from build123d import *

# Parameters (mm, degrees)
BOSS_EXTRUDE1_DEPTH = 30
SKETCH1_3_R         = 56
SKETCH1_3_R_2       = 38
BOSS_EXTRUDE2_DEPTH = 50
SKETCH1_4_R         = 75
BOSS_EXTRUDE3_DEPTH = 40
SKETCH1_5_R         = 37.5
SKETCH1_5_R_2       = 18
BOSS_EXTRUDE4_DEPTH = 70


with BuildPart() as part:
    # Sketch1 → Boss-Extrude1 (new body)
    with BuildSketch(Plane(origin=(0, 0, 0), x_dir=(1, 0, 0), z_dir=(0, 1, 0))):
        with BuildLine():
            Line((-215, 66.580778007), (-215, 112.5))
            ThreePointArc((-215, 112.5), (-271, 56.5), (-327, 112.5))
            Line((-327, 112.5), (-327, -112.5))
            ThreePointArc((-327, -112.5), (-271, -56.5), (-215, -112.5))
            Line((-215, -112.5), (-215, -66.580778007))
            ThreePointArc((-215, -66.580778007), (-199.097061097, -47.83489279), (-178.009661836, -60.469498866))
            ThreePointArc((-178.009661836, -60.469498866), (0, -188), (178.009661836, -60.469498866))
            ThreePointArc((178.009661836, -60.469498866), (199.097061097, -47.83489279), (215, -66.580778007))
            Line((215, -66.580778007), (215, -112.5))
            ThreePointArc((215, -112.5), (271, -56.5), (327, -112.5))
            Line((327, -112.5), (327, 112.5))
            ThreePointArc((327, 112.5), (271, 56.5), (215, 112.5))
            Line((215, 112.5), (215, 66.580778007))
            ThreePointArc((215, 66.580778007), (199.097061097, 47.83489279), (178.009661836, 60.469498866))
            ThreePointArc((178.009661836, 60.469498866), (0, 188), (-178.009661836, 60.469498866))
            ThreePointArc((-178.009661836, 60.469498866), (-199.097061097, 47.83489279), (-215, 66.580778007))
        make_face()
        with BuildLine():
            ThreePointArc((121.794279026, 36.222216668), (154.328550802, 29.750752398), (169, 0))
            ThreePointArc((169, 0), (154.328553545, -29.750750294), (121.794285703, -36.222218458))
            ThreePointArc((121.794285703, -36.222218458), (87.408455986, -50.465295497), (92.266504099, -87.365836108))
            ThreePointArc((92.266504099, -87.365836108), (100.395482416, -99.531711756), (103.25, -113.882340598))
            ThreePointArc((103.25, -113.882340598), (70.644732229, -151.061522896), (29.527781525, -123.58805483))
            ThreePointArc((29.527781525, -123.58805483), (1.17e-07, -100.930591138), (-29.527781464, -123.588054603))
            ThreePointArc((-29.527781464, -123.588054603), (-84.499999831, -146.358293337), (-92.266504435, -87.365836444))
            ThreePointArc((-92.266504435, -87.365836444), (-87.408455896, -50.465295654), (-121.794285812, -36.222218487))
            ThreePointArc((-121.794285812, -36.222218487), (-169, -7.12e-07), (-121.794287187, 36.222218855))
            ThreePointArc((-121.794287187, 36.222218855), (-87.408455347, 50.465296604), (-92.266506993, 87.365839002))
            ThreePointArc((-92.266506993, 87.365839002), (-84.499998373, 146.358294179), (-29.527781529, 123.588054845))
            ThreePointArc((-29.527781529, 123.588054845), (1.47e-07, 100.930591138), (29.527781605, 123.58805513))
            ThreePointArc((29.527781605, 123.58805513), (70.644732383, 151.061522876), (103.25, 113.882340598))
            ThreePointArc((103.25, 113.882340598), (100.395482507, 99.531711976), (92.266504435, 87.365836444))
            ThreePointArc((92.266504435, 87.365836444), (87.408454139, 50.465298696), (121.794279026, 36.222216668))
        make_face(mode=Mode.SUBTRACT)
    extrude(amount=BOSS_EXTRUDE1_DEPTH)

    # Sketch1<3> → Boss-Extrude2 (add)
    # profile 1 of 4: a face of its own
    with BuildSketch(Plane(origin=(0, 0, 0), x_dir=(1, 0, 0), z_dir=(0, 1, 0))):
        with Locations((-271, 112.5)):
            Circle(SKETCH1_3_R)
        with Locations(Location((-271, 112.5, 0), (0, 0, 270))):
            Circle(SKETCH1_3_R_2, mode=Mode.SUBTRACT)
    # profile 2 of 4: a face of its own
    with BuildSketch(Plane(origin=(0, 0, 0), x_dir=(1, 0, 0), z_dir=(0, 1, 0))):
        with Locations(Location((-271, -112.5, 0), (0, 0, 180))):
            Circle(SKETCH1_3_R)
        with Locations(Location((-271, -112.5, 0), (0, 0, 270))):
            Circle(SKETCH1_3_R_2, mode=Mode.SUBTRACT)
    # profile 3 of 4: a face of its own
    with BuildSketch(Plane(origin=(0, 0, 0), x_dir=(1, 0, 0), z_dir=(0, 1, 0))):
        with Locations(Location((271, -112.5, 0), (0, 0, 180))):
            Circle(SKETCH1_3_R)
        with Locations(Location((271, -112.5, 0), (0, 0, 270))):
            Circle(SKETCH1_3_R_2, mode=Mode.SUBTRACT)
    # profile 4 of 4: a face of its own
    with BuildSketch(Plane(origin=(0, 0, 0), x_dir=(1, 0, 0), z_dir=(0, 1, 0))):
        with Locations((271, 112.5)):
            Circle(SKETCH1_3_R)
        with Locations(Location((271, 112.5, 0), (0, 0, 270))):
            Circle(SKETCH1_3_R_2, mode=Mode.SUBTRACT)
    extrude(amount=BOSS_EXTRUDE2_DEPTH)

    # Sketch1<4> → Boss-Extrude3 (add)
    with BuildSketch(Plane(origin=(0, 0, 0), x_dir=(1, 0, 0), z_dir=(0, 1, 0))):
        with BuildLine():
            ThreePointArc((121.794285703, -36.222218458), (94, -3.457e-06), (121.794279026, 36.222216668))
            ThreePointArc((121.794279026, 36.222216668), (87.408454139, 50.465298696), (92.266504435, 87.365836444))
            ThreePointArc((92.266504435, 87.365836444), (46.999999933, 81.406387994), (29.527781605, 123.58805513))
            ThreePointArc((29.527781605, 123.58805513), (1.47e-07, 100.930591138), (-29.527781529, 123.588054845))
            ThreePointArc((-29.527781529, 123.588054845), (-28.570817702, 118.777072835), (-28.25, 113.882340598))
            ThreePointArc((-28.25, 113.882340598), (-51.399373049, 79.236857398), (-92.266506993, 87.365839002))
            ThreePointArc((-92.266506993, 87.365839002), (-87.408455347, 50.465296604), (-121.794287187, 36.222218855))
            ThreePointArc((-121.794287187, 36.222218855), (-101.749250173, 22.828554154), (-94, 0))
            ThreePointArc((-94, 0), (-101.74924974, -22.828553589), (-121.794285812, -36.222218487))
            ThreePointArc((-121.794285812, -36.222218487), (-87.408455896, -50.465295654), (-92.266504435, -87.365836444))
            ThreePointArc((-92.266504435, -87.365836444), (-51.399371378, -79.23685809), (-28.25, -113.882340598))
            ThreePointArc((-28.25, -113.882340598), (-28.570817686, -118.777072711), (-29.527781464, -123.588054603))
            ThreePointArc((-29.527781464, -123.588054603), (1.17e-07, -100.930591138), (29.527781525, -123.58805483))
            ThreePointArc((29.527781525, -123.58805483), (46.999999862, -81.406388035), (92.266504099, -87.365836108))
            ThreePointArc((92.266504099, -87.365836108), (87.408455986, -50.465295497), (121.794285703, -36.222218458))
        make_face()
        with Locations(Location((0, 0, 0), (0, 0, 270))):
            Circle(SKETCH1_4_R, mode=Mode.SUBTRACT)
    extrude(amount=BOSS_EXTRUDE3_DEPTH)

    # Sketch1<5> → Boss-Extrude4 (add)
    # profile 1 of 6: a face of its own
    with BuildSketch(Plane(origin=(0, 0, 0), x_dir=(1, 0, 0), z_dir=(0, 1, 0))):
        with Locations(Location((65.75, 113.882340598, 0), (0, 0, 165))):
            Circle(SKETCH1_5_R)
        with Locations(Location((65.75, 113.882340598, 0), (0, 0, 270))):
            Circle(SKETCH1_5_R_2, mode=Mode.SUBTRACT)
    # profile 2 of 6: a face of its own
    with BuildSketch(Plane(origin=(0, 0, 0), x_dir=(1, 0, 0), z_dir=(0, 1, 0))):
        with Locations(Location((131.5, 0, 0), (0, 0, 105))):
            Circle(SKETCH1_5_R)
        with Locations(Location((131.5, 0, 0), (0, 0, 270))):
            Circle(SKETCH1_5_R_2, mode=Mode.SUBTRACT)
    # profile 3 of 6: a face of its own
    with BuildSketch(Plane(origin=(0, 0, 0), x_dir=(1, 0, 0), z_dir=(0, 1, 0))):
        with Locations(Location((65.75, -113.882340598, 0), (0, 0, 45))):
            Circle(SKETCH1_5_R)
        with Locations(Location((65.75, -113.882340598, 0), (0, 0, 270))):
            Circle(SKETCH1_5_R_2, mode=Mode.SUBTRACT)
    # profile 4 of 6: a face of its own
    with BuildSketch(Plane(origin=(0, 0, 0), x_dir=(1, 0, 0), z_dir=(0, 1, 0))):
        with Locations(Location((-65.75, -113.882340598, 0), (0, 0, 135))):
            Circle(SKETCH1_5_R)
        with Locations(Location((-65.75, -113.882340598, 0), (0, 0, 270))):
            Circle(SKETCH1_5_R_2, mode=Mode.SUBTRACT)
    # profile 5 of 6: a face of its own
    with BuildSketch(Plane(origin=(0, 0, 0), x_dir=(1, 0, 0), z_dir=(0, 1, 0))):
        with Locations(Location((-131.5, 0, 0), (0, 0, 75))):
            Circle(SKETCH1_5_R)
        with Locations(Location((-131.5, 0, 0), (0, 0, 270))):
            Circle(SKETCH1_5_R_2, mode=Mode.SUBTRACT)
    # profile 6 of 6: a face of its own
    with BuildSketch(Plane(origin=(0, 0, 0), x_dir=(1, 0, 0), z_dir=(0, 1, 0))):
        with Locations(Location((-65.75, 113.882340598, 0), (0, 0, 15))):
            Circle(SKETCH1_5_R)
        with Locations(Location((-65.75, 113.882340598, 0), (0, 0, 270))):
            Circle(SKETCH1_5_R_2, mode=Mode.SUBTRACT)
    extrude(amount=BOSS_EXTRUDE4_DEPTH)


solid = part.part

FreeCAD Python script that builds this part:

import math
import FreeCAD as App
import Part
import Sketcher
from FreeCAD import Vector
Q = App.Units.Quantity

doc = App.newDocument("Part")
body = doc.addObject("PartDesign::Body", "Body")

# Sketch on XZ plane
sketch1 = body.newObject("Sketcher::SketchObject", "Sketch")
sketch1.AttachmentSupport = (doc.getObject("XZ_Plane"), [""])
sketch1.MapMode = "FlatFace"
sketch1.addGeometry([
    Part.LineSegment(Vector(-215, -67, 0), Vector(-215, -112, 0)),  # 0
    Part.ArcOfCircle(Part.Circle(Vector(-271, -112, 0), Vector(0, 0, 1), 56), math.radians(0), math.radians(180)),  # 1
    Part.LineSegment(Vector(-327, -112, 0), Vector(-327, 112, 0)),  # 2
    Part.ArcOfCircle(Part.Circle(Vector(-271, 112, 0), Vector(0, 0, 1), 56), math.radians(180), math.radians(360)),  # 3
    Part.LineSegment(Vector(-215, 112, 0), Vector(-215, 67, 0)),  # 4
    Part.ArcOfCircle(Part.Circle(Vector(-196, 67, 0), Vector(0, 0, 1), 19), math.radians(180), math.radians(341)),  # 5
    Part.ArcOfCircle(Part.Circle(Vector(0, 0, 0), Vector(0, 0, 1), 188), math.radians(19), math.radians(161)),  # 6
    Part.ArcOfCircle(Part.Circle(Vector(196, 67, 0), Vector(0, 0, 1), 19), math.radians(-161), math.radians(0)),  # 7
    Part.LineSegment(Vector(215, 67, 0), Vector(215, 112, 0)),  # 8
    Part.ArcOfCircle(Part.Circle(Vector(271, 112, 0), Vector(0, 0, 1), 56), math.radians(180), math.radians(360)),  # 9
    Part.LineSegment(Vector(327, 112, 0), Vector(327, -112, 0)),  # 10
    Part.ArcOfCircle(Part.Circle(Vector(271, -112, 0), Vector(0, 0, 1), 56), math.radians(0), math.radians(180)),  # 11
    Part.LineSegment(Vector(215, -112, 0), Vector(215, -67, 0)),  # 12
    Part.ArcOfCircle(Part.Circle(Vector(196, -67, 0), Vector(0, 0, 1), 19), math.radians(0), math.radians(161)),  # 13
    Part.ArcOfCircle(Part.Circle(Vector(0, 0, 0), Vector(0, 0, 1), 188), math.radians(-161), math.radians(-19)),  # 14
    Part.ArcOfCircle(Part.Circle(Vector(-196, -67, 0), Vector(0, 0, 1), 19), math.radians(19), math.radians(180)),  # 15
    Part.ArcOfCircle(Part.Circle(Vector(114, -66, 0), Vector(0, 0, 1), 31), math.radians(75), math.radians(225)),  # 16
    Part.ArcOfCircle(Part.Circle(Vector(132, 0, 0), Vector(0, 0, 1), 38), math.radians(-105), math.radians(0)),  # 17
    Part.ArcOfCircle(Part.Circle(Vector(132, 0, 0), Vector(0, 0, 1), 38), math.radians(0), math.radians(105)),  # 18
    Part.ArcOfCircle(Part.Circle(Vector(114, 66, 0), Vector(0, 0, 1), 31), math.radians(135), math.radians(285)),  # 19
    Part.ArcOfCircle(Part.Circle(Vector(66, 114, 0), Vector(0, 0, 1), 38), math.radians(-45), math.radians(0)),  # 20
    Part.ArcOfCircle(Part.Circle(Vector(66, 114, 0), Vector(0, 0, 1), 38), math.radians(0), math.radians(165)),  # 21
    Part.ArcOfCircle(Part.Circle(Vector(0, 132, 0), Vector(0, 0, 1), 31), math.radians(-165), math.radians(-15)),  # 22
    Part.ArcOfCircle(Part.Circle(Vector(-66, 114, 0), Vector(0, 0, 1), 38), math.radians(15), math.radians(225)),  # 23
    Part.ArcOfCircle(Part.Circle(Vector(-114, 66, 0), Vector(0, 0, 1), 31), math.radians(-105), math.radians(45)),  # 24
    Part.ArcOfCircle(Part.Circle(Vector(-132, 0, 0), Vector(0, 0, 1), 38), math.radians(75), math.radians(285)),  # 25
    Part.ArcOfCircle(Part.Circle(Vector(-114, -66, 0), Vector(0, 0, 1), 31), math.radians(-45), math.radians(105)),  # 26
    Part.ArcOfCircle(Part.Circle(Vector(-66, -114, 0), Vector(0, 0, 1), 38), math.radians(135), math.radians(345)),  # 27
    Part.ArcOfCircle(Part.Circle(Vector(0, -131, 0), Vector(0, 0, 1), 31), math.radians(15), math.radians(165)),  # 28
    Part.ArcOfCircle(Part.Circle(Vector(66, -114, 0), Vector(0, 0, 1), 38), math.radians(-165), math.radians(0)),  # 29
    Part.ArcOfCircle(Part.Circle(Vector(66, -114, 0), Vector(0, 0, 1), 38), math.radians(0), math.radians(45)),  # 30
], False)
sketch1.addConstraint([
    Sketcher.Constraint("Tangent", 0, 2, 1, 1),
    Sketcher.Constraint("Tangent", 1, 2, 2, 1),
    Sketcher.Constraint("Tangent", 2, 2, 3, 1),
    Sketcher.Constraint("Tangent", 3, 2, 4, 1),
    Sketcher.Constraint("Tangent", 4, 2, 5, 1),
    Sketcher.Constraint("Tangent", 5, 2, 6, 2),
    Sketcher.Constraint("Tangent", 6, 1, 7, 1),
    Sketcher.Constraint("Tangent", 7, 2, 8, 1),
    Sketcher.Constraint("Tangent", 8, 2, 9, 1),
    Sketcher.Constraint("Tangent", 9, 2, 10, 1),
    Sketcher.Constraint("Tangent", 10, 2, 11, 1),
    Sketcher.Constraint("Tangent", 11, 2, 12, 1),
    Sketcher.Constraint("Tangent", 12, 2, 13, 1),
    Sketcher.Constraint("Tangent", 13, 2, 14, 2),
    Sketcher.Constraint("Tangent", 14, 1, 15, 1),
    Sketcher.Constraint("Tangent", 15, 2, 0, 1),
    Sketcher.Constraint("Tangent", 16, 1, 17, 1),
    Sketcher.Constraint("Tangent", 17, 2, 18, 1),
    Sketcher.Constraint("Tangent", 18, 2, 19, 2),
    Sketcher.Constraint("Tangent", 19, 1, 20, 1),
    Sketcher.Constraint("Tangent", 20, 2, 21, 1),
    Sketcher.Constraint("Tangent", 21, 2, 22, 2),
    Sketcher.Constraint("Tangent", 22, 1, 23, 1),
    Sketcher.Constraint("Tangent", 23, 2, 24, 2),
    Sketcher.Constraint("Tangent", 24, 1, 25, 1),
    Sketcher.Constraint("Tangent", 25, 2, 26, 2),
    Sketcher.Constraint("Tangent", 26, 1, 27, 1),
    Sketcher.Constraint("Tangent", 27, 2, 28, 2),
    Sketcher.Constraint("Tangent", 28, 1, 29, 1),
    Sketcher.Constraint("Tangent", 29, 2, 30, 1),
    Sketcher.Constraint("Tangent", 30, 2, 16, 2),
    Sketcher.Constraint("Vertical", 0),
    Sketcher.Constraint("Vertical", 2),
    Sketcher.Constraint("Vertical", 4),
    Sketcher.Constraint("Vertical", 8),
    Sketcher.Constraint("Vertical", 10),
    Sketcher.Constraint("Vertical", 12),
    Sketcher.Constraint("Coincident", 6, 3, -1, 1),
    Sketcher.Constraint("Coincident", 14, 3, -1, 1),
    Sketcher.Constraint("Equal", 1, 3),
    Sketcher.Constraint("Equal", 5, 7),
    Sketcher.Constraint("Equal", 3, 9),
    Sketcher.Constraint("Equal", 9, 11),
    Sketcher.Constraint("Equal", 7, 13),
    Sketcher.Constraint("Equal", 6, 14),
    Sketcher.Constraint("Equal", 13, 15),
    Sketcher.Constraint("Equal", 17, 18),
    Sketcher.Constraint("Equal", 16, 19),
    Sketcher.Constraint("Equal", 18, 20),
    Sketcher.Constraint("Equal", 20, 21),
    Sketcher.Constraint("Equal", 19, 22),
    Sketcher.Constraint("Equal", 21, 23),
    Sketcher.Constraint("Equal", 22, 24),
    Sketcher.Constraint("Equal", 23, 25),
    Sketcher.Constraint("Equal", 24, 26),
    Sketcher.Constraint("Equal", 25, 27),
    Sketcher.Constraint("Equal", 26, 28),
    Sketcher.Constraint("Equal", 27, 29),
    Sketcher.Constraint("Equal", 29, 30),
    Sketcher.Constraint("Symmetric", 1, 3, 9, 3, -1, 1),
    Sketcher.Constraint("Symmetric", 16, 3, 24, 3, -1, 1),
    Sketcher.Constraint("Symmetric", 19, 3, 26, 3, -1, 1),
    Sketcher.Constraint("Symmetric", 22, 3, 28, 3, -1, 1),
    Sketcher.Constraint("Symmetric", 20, 3, 23, 3, -2),
    Sketcher.Constraint("PointOnObject", 17, 3, -1),
    Sketcher.Constraint("PointOnObject", 17, 2, -1),
    Sketcher.Constraint("Horizontal", 3, 3, 9, 3),
    Sketcher.Constraint("Horizontal", 1, 3, 11, 3),
    Sketcher.Constraint("Horizontal", 23, 3, 20, 2),
    Sketcher.Constraint("Horizontal", 30, 3, 29, 2),
    Sketcher.Constraint("Radius", 1, Q("56 mm")),
    Sketcher.Constraint("Radius", 5, Q("19 mm")),
    Sketcher.Constraint("Radius", 6, Q("188 mm")),
    Sketcher.Constraint("Radius", 17, Q("37.5 mm")),
    Sketcher.Constraint("DistanceY", 2, 1, 2, 2, Q("225 mm")),
    Sketcher.Constraint("DistanceX", 1, 3, -1, 1, Q("271 mm")),
    Sketcher.Constraint("DistanceX", -1, 1, 17, 2, Q("169 mm")),
    Sketcher.Constraint("DistanceY", -1, 1, 22, 3, Q("131.5 mm")),
    Sketcher.Constraint("DistanceX", 23, 3, 20, 3, Q("131.5 mm")),
    Sketcher.Constraint("DistanceY", 26, 3, 24, 3, Q("131.5 mm")),
])
pad1 = body.newObject("PartDesign::Pad", "Pad")
pad1.Profile = sketch1
pad1.Length = 30
pad1.Reversed = True

# Sketch on XZ plane
sketch2 = body.newObject("Sketcher::SketchObject", "Sketch001")
sketch2.AttachmentSupport = (doc.getObject("XZ_Plane"), [""])
sketch2.MapMode = "FlatFace"
sketch2.addGeometry([
    Part.Circle(Vector(-271, -112, 0), Vector(0, 0, 1), 56),  # 0
    Part.Circle(Vector(-271, -112, 0), Vector(0, 0, 1), 38),  # 1
    Part.Circle(Vector(-271, 112, 0), Vector(0, 0, 1), 56),  # 2
    Part.Circle(Vector(-271, 112, 0), Vector(0, 0, 1), 38),  # 3
    Part.Circle(Vector(271, 112, 0), Vector(0, 0, 1), 56),  # 4
    Part.Circle(Vector(271, 112, 0), Vector(0, 0, 1), 38),  # 5
    Part.Circle(Vector(271, -112, 0), Vector(0, 0, 1), 56),  # 6
    Part.Circle(Vector(271, -112, 0), Vector(0, 0, 1), 38),  # 7
], False)
sketch2.addConstraint([
    Sketcher.Constraint("Coincident", 1, 3, 0, 3),
    Sketcher.Constraint("Coincident", 3, 3, 2, 3),
    Sketcher.Constraint("Coincident", 5, 3, 4, 3),
    Sketcher.Constraint("Coincident", 7, 3, 6, 3),
    Sketcher.Constraint("Equal", 0, 2),
    Sketcher.Constraint("Equal", 1, 3),
    Sketcher.Constraint("Equal", 2, 4),
    Sketcher.Constraint("Equal", 3, 5),
    Sketcher.Constraint("Equal", 4, 6),
    Sketcher.Constraint("Equal", 5, 7),
    Sketcher.Constraint("Symmetric", 0, 3, 4, 3, -1, 1),
    Sketcher.Constraint("Symmetric", 2, 3, 6, 3, -1, 1),
    Sketcher.Constraint("Symmetric", 2, 3, 4, 3, -2),
    Sketcher.Constraint("Diameter", 0, Q("112 mm")),
    Sketcher.Constraint("Diameter", 1, Q("76 mm")),
    Sketcher.Constraint("DistanceX", 0, 3, -1, 1, Q("271 mm")),
    Sketcher.Constraint("DistanceY", 0, 3, 2, 3, Q("225 mm")),
])
pad2 = body.newObject("PartDesign::Pad", "Pad001")
pad2.Profile = sketch2
pad2.Length = 50
pad2.Reversed = True

# Sketch on XZ plane
sketch3 = body.newObject("Sketcher::SketchObject", "Sketch002")
sketch3.AttachmentSupport = (doc.getObject("XZ_Plane"), [""])
sketch3.MapMode = "FlatFace"
sketch3.addGeometry([
    Part.ArcOfCircle(Part.Circle(Vector(132, 0, 0), Vector(0, 0, 1), 38), math.radians(105), math.radians(255)),  # 0
    Part.ArcOfCircle(Part.Circle(Vector(114, -66, 0), Vector(0, 0, 1), 31), math.radians(75), math.radians(225)),  # 1
    Part.ArcOfCircle(Part.Circle(Vector(66, -114, 0), Vector(0, 0, 1), 38), math.radians(45), math.radians(195)),  # 2
    Part.ArcOfCircle(Part.Circle(Vector(0, -131, 0), Vector(0, 0, 1), 31), math.radians(15), math.radians(165)),  # 3
    Part.ArcOfCircle(Part.Circle(Vector(-66, -114, 0), Vector(0, 0, 1), 37), math.radians(-15), math.radians(0)),  # 4
    Part.ArcOfCircle(Part.Circle(Vector(-66, -114, 0), Vector(0, 0, 1), 38), math.radians(0), math.radians(135)),  # 5
    Part.ArcOfCircle(Part.Circle(Vector(-114, -66, 0), Vector(0, 0, 1), 31), math.radians(-45), math.radians(105)),  # 6
    Part.ArcOfCircle(Part.Circle(Vector(-131, 0, 0), Vector(0, 0, 1), 37), math.radians(-75), math.radians(0)),  # 7
    Part.ArcOfCircle(Part.Circle(Vector(-132, 0, 0), Vector(0, 0, 1), 38), math.radians(0), math.radians(75)),  # 8
    Part.ArcOfCircle(Part.Circle(Vector(-114, 66, 0), Vector(0, 0, 1), 31), math.radians(-105), math.radians(45)),  # 9
    Part.ArcOfCircle(Part.Circle(Vector(-66, 114, 0), Vector(0, 0, 1), 38), math.radians(-135), math.radians(0)),  # 10
    Part.ArcOfCircle(Part.Circle(Vector(-66, 114, 0), Vector(0, 0, 1), 38), math.radians(0), math.radians(15)),  # 11
    Part.ArcOfCircle(Part.Circle(Vector(0, 132, 0), Vector(0, 0, 1), 31), math.radians(-165), math.radians(-15)),  # 12
    Part.ArcOfCircle(Part.Circle(Vector(66, 114, 0), Vector(0, 0, 1), 38), math.radians(165), math.radians(315)),  # 13
    Part.ArcOfCircle(Part.Circle(Vector(114, 66, 0), Vector(0, 0, 1), 31), math.radians(135), math.radians(285)),  # 14
    Part.Circle(Vector(0, 0, 0), Vector(0, 0, 1), 75),  # 15
], False)
sketch3.addConstraint([
    Sketcher.Constraint("Tangent", 0, 2, 1, 1),
    Sketcher.Constraint("Tangent", 1, 2, 2, 1),
    Sketcher.Constraint("Tangent", 2, 2, 3, 1),
    Sketcher.Constraint("Tangent", 3, 2, 4, 1),
    Sketcher.Constraint("Tangent", 4, 2, 5, 1),
    Sketcher.Constraint("Tangent", 5, 2, 6, 1),
    Sketcher.Constraint("Tangent", 6, 2, 7, 1),
    Sketcher.Constraint("Tangent", 7, 2, 8, 1),
    Sketcher.Constraint("Tangent", 8, 2, 9, 1),
    Sketcher.Constraint("Tangent", 9, 2, 10, 1),
    Sketcher.Constraint("Tangent", 10, 2, 11, 1),
    Sketcher.Constraint("Tangent", 11, 2, 12, 1),
    Sketcher.Constraint("Tangent", 12, 2, 13, 1),
    Sketcher.Constraint("Tangent", 13, 2, 14, 1),
    Sketcher.Constraint("Tangent", 14, 2, 0, 1),
    Sketcher.Constraint("Coincident", 15, 3, -1, 1),
    Sketcher.Constraint("Equal", 0, 2),
    Sketcher.Constraint("Equal", 1, 3),
    Sketcher.Constraint("Equal", 2, 4),
    Sketcher.Constraint("Equal", 4, 5),
    Sketcher.Constraint("Equal", 3, 6),
    Sketcher.Constraint("Equal", 5, 7),
    Sketcher.Constraint("Equal", 7, 8),
    Sketcher.Constraint("Equal", 6, 9),
    Sketcher.Constraint("Equal", 8, 10),
    Sketcher.Constraint("Equal", 10, 11),
    Sketcher.Constraint("Equal", 9, 12),
    Sketcher.Constraint("Equal", 11, 13),
    Sketcher.Constraint("Equal", 12, 14),
    Sketcher.Constraint("Symmetric", 0, 3, 7, 3, -1, 1),
    Sketcher.Constraint("Symmetric", 2, 3, 10, 3, -1, 1),
    Sketcher.Constraint("Symmetric", 4, 3, 13, 3, -1, 1),
    Sketcher.Constraint("Symmetric", 2, 3, 4, 3, -2),
    Sketcher.Constraint("PointOnObject", 0, 3, -1),
    Sketcher.Constraint("PointOnObject", 7, 2, -1),
    Sketcher.Constraint("Horizontal", 5, 3, 4, 2),
    Sketcher.Constraint("Horizontal", 13, 3, 10, 2),
    Sketcher.Constraint("Diameter", 15, Q("150 mm")),
    Sketcher.Constraint("Radius", 0, Q("37.5 mm")),
    Sketcher.Constraint("DistanceX", 7, 2, -1, 1, Q("94 mm")),
    Sketcher.Constraint("DistanceX", 10, 2, 13, 3, Q("94 mm")),
    Sketcher.Constraint("DistanceY", 3, 3, -1, 1, Q("131.5 mm")),
    Sketcher.Constraint("DistanceY", 6, 3, 9, 3, Q("131.5 mm")),
])
pad3 = body.newObject("PartDesign::Pad", "Pad002")
pad3.Profile = sketch3
pad3.Length = 40
pad3.Reversed = True

# Sketch on XZ plane
sketch4 = body.newObject("Sketcher::SketchObject", "Sketch003")
sketch4.AttachmentSupport = (doc.getObject("XZ_Plane"), [""])
sketch4.MapMode = "FlatFace"
sketch4.addGeometry([
    Part.Circle(Vector(66, -114, 0), Vector(0, 0, 1), 38),  # 0
    Part.Circle(Vector(66, -114, 0), Vector(0, 0, 1), 18),  # 1
    Part.Circle(Vector(132, 0, 0), Vector(0, 0, 1), 38),  # 2
    Part.Circle(Vector(132, 0, 0), Vector(0, 0, 1), 18),  # 3
    Part.Circle(Vector(66, 114, 0), Vector(0, 0, 1), 38),  # 4
    Part.Circle(Vector(66, 114, 0), Vector(0, 0, 1), 18),  # 5
    Part.Circle(Vector(-66, 114, 0), Vector(0, 0, 1), 38),  # 6
    Part.Circle(Vector(-66, 114, 0), Vector(0, 0, 1), 18),  # 7
    Part.Circle(Vector(-132, 0, 0), Vector(0, 0, 1), 38),  # 8
    Part.Circle(Vector(-132, 0, 0), Vector(0, 0, 1), 18),  # 9
    Part.Circle(Vector(-66, -114, 0), Vector(0, 0, 1), 38),  # 10
    Part.Circle(Vector(-66, -114, 0), Vector(0, 0, 1), 18),  # 11
], False)
sketch4.addConstraint([
    Sketcher.Constraint("Coincident", 1, 3, 0, 3),
    Sketcher.Constraint("Coincident", 3, 3, 2, 3),
    Sketcher.Constraint("Coincident", 5, 3, 4, 3),
    Sketcher.Constraint("Coincident", 7, 3, 6, 3),
    Sketcher.Constraint("Coincident", 9, 3, 8, 3),
    Sketcher.Constraint("Coincident", 11, 3, 10, 3),
    Sketcher.Constraint("Equal", 0, 2),
    Sketcher.Constraint("Equal", 1, 3),
    Sketcher.Constraint("Equal", 2, 4),
    Sketcher.Constraint("Equal", 3, 5),
    Sketcher.Constraint("Equal", 4, 6),
    Sketcher.Constraint("Equal", 5, 7),
    Sketcher.Constraint("Equal", 6, 8),
    Sketcher.Constraint("Equal", 7, 9),
    Sketcher.Constraint("Equal", 8, 10),
    Sketcher.Constraint("Equal", 9, 11),
    Sketcher.Constraint("Symmetric", 0, 3, 6, 3, -1, 1),
    Sketcher.Constraint("Symmetric", 2, 3, 8, 3, -1, 1),
    Sketcher.Constraint("Symmetric", 4, 3, 10, 3, -1, 1),
    Sketcher.Constraint("Symmetric", 4, 3, 6, 3, -2),
    Sketcher.Constraint("PointOnObject", 2, 3, -1),
    Sketcher.Constraint("Diameter", 0, Q("75 mm")),
    Sketcher.Constraint("Diameter", 1, Q("36 mm")),
    Sketcher.Constraint("DistanceX", -1, 1, 2, 3, Q("131.5 mm")),
    Sketcher.Constraint("DistanceX", 6, 3, 4, 3, Q("131.5 mm")),
    Sketcher.Constraint("DistanceY", 0, 3, -1, 1, Q("113.882341 mm")),
])
pad4 = body.newObject("PartDesign::Pad", "Pad003")
pad4.Profile = sketch4
pad4.Length = 70
pad4.Reversed = True

doc.recompute()
